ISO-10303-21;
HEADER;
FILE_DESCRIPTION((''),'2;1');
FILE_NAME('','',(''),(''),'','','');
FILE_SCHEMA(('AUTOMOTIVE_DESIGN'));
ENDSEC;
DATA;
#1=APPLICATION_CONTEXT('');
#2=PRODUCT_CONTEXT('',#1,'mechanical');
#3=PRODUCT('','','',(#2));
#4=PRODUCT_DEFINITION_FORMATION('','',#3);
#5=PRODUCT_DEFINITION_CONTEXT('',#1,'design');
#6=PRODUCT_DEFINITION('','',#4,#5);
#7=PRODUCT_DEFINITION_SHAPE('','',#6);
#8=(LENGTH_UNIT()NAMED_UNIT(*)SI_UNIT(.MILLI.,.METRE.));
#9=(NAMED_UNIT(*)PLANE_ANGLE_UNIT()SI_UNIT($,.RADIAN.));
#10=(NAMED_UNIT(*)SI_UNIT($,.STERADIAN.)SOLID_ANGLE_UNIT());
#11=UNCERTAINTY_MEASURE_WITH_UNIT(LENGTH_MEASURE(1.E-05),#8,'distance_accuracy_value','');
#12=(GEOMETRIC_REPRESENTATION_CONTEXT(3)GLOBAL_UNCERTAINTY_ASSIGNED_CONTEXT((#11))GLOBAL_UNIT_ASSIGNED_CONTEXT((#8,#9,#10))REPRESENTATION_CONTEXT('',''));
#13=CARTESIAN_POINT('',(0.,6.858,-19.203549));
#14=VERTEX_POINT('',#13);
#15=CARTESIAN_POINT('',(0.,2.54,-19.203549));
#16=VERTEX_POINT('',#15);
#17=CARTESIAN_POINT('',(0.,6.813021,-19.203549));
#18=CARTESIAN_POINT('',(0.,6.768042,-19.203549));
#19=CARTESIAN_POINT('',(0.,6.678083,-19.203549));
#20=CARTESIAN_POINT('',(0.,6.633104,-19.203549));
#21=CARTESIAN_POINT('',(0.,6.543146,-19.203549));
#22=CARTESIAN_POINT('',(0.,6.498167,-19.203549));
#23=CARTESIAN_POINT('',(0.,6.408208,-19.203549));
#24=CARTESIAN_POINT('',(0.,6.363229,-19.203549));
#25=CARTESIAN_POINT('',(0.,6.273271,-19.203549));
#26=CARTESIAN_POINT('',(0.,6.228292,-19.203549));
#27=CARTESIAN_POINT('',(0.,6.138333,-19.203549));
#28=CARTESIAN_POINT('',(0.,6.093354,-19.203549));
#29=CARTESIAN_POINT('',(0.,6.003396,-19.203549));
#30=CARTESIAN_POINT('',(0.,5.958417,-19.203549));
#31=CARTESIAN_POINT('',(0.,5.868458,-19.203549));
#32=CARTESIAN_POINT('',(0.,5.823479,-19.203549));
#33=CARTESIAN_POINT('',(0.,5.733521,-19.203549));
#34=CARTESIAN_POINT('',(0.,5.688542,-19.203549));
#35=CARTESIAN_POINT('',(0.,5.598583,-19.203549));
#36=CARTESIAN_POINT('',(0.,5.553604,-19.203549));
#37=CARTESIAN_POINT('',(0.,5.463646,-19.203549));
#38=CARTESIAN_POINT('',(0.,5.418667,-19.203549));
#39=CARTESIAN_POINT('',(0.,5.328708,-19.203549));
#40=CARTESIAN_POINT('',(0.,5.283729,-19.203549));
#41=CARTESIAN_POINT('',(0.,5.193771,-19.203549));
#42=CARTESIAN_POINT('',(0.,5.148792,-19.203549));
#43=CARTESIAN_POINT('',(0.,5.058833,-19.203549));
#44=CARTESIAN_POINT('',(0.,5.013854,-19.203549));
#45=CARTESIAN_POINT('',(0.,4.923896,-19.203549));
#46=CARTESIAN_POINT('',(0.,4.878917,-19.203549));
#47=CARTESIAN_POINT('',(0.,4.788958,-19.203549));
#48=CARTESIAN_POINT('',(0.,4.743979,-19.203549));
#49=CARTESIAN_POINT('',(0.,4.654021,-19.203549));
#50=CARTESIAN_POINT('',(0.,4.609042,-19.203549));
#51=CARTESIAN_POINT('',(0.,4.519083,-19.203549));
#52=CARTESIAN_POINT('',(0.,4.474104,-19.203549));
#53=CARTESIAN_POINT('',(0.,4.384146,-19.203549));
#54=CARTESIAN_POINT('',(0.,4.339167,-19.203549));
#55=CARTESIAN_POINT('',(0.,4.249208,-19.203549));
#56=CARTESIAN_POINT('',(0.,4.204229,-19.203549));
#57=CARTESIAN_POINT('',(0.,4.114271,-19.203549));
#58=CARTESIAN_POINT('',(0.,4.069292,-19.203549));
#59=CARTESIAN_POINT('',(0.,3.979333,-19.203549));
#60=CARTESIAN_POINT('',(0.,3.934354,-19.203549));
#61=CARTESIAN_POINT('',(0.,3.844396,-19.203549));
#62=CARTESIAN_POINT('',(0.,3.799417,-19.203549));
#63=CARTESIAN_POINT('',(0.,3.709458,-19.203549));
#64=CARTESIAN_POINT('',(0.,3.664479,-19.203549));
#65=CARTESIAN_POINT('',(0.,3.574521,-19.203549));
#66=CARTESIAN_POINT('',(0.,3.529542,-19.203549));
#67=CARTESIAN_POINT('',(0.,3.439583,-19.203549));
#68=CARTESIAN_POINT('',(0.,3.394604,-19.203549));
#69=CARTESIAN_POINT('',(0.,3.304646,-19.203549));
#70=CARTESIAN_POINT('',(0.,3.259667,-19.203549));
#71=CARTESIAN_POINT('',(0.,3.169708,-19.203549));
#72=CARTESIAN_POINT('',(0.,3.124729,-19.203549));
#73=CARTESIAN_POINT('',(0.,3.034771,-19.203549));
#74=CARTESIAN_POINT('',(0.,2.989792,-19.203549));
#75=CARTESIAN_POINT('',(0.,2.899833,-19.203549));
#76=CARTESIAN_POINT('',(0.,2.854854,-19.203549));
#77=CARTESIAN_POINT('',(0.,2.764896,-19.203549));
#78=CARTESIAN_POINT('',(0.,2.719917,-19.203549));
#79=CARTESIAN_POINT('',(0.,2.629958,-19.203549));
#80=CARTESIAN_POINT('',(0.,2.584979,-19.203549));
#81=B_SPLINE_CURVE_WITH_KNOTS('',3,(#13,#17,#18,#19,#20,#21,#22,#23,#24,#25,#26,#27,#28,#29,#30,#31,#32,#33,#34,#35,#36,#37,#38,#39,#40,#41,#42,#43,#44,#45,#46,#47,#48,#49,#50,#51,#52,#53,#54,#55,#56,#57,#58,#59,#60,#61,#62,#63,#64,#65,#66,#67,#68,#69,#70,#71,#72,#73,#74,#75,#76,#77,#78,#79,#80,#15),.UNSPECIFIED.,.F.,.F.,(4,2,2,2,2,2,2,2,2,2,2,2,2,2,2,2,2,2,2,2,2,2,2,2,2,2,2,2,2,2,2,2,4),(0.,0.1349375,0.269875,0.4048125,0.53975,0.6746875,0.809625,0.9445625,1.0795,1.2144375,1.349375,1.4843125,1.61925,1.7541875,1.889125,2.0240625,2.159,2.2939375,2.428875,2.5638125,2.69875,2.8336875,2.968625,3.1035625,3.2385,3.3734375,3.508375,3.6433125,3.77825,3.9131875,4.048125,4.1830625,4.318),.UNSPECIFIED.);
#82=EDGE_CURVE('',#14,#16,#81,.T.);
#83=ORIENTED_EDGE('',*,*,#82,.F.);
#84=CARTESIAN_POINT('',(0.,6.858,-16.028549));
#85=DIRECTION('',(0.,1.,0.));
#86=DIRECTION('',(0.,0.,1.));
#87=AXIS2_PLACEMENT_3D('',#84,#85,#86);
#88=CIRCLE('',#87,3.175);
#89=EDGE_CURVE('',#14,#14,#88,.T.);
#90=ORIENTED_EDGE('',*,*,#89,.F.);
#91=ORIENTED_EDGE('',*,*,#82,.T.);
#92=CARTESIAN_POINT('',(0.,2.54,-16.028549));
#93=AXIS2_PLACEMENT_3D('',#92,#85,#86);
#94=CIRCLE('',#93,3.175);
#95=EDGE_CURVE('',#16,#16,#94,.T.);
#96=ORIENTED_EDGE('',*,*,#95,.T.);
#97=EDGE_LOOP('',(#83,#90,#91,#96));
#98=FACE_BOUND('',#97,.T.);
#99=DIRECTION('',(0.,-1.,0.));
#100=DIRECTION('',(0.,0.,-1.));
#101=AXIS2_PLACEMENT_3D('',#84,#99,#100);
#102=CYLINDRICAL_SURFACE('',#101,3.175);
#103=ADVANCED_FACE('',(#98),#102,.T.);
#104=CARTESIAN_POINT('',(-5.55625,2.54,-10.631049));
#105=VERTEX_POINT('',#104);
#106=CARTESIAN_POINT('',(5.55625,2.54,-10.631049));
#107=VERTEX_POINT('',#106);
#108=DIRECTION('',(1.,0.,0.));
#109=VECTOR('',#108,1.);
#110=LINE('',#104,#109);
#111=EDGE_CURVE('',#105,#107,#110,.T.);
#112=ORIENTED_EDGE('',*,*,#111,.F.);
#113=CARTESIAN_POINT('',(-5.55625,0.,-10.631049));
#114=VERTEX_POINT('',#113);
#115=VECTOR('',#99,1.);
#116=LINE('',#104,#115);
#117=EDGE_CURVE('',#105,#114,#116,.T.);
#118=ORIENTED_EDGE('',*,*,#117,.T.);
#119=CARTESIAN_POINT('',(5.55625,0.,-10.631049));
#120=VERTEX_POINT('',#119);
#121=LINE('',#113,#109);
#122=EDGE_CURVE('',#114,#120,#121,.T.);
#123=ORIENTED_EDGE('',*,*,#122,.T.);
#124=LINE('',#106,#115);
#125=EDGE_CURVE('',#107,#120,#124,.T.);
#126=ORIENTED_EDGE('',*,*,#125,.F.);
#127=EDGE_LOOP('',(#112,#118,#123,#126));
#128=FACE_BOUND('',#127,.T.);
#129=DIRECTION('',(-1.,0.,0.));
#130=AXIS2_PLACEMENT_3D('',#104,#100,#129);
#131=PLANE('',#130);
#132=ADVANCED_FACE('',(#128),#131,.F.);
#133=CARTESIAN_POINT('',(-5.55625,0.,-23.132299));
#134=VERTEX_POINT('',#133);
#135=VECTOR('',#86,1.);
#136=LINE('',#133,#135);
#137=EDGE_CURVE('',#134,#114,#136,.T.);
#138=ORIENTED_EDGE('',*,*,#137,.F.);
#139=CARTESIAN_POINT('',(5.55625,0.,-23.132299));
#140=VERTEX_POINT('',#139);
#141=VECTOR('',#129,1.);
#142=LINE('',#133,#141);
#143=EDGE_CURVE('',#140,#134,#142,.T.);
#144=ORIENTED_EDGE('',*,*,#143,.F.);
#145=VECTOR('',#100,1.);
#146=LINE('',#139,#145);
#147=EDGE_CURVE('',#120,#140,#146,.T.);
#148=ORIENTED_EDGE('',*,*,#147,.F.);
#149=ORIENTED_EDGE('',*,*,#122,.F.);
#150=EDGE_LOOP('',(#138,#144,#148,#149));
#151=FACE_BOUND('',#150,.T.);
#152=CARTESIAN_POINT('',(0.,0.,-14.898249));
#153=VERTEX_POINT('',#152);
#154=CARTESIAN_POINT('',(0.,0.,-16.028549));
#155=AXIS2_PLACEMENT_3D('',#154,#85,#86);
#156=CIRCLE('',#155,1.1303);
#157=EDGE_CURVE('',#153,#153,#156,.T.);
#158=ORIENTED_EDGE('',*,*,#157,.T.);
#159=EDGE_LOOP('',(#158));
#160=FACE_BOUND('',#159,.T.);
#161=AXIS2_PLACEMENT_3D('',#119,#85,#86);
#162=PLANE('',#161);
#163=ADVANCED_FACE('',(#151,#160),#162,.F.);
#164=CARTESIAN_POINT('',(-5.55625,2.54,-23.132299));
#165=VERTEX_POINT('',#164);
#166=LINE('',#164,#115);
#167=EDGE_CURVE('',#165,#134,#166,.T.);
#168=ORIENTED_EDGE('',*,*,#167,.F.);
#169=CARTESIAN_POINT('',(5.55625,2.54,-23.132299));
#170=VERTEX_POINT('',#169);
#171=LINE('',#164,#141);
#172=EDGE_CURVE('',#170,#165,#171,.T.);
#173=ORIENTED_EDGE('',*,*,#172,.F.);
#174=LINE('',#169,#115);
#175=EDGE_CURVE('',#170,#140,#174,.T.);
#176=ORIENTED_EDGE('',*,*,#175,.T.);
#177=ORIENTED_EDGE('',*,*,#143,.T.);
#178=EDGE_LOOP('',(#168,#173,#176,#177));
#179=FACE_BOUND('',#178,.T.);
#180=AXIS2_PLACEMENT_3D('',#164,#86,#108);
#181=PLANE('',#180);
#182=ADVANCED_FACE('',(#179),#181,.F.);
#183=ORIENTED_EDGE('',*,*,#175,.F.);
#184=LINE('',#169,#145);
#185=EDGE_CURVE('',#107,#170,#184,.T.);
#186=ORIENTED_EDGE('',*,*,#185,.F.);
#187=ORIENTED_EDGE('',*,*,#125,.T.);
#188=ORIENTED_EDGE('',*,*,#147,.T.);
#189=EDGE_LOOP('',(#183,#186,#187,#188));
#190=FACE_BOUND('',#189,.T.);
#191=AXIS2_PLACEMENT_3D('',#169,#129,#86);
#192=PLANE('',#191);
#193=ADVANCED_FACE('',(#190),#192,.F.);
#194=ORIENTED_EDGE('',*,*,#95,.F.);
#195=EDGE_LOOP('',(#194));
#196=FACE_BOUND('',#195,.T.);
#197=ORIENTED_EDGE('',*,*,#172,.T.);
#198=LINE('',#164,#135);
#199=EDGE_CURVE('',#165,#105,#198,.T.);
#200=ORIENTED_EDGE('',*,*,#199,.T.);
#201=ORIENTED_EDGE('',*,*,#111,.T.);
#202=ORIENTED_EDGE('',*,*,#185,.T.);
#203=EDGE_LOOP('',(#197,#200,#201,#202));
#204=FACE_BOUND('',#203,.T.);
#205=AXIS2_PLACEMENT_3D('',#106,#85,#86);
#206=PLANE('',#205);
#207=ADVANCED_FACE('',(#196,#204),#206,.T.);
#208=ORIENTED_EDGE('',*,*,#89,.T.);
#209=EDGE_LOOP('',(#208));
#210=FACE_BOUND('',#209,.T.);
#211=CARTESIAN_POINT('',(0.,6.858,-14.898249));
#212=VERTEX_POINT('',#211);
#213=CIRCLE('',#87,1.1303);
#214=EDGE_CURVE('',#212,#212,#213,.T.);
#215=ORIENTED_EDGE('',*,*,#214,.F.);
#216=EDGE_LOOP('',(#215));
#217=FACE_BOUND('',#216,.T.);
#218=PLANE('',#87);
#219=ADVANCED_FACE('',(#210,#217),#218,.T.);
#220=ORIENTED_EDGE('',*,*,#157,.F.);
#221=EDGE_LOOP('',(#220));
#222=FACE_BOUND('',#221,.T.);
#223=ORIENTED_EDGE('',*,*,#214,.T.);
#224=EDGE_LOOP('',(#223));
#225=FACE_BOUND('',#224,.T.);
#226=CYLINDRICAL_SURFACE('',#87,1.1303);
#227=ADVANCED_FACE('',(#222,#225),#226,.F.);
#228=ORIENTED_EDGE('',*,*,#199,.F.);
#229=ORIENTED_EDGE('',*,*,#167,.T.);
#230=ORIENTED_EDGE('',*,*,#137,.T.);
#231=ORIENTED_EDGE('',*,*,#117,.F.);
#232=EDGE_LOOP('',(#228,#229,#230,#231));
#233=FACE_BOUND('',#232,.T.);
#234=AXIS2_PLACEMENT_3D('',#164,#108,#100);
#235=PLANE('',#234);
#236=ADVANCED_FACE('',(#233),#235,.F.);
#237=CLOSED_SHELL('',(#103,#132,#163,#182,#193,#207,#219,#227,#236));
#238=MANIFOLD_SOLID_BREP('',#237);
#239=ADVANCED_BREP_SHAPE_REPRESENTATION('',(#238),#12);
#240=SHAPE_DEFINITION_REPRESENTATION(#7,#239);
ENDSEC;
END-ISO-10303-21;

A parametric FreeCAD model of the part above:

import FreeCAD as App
import Part
import Sketcher

V = App.Vector
Q = App.Units.Quantity

doc = App.newDocument("Part")
body = doc.addObject("PartDesign::Body", "Body")

# Sketch on XZ plane
sketch1 = body.newObject("Sketcher::SketchObject", "Sketch")
sketch1.AttachmentSupport = (doc.getObject("XZ_Plane"), [""])
sketch1.MapMode = "FlatFace"
sketch1.addGeometry([
    Part.LineSegment(V(-6, -23, 0), V(-6, -11, 0)),
    Part.LineSegment(V(-6, -11, 0), V(6, -11, 0)),
    Part.LineSegment(V(6, -11, 0), V(6, -23, 0)),
    Part.LineSegment(V(6, -23, 0), V(-6, -23, 0)),
], False)
sketch1.addConstraint([
    Sketcher.Constraint("Coincident", 0, 2, 1, 1),
    Sketcher.Constraint("Coincident", 1, 2, 2, 1),
    Sketcher.Constraint("Coincident", 2, 2, 3, 1),
    Sketcher.Constraint("Coincident", 3, 2, 0, 1),
    Sketcher.Constraint("Vertical", 0),
    Sketcher.Constraint("Horizontal", 1),
    Sketcher.Constraint("Vertical", 2),
    Sketcher.Constraint("Horizontal", 3),
    Sketcher.Constraint("DistanceX", 1, 1, 1, 2, Q("0.4375 in")),
    Sketcher.Constraint("DistanceX", 0, 2, -1, 1, Q("0.21875 in")),
    Sketcher.Constraint("DistanceY", 0, 1, 0, 2, 12.50125),
    Sketcher.Constraint("DistanceY", 2, 2, -1, 1, 23.132299),
])
pad1 = body.newObject("PartDesign::Pad", "Pad")
pad1.Profile = sketch1
pad1.Length = Q("0.1 in")
pad1.Reversed = True

# Sketch on XZ plane
sketch2 = body.newObject("Sketcher::SketchObject", "Sketch001")
sketch2.AttachmentSupport = (doc.getObject("XZ_Plane"), [""])
sketch2.MapMode = "FlatFace"
sketch2.AttachmentOffset = App.Placement(V(0, 0, -0.1 * 25.4), App.Rotation())
sketch2.addGeometry(Part.Circle(V(0, -16, 0), V(0, 0, 1), 3.2), False)
sketch2.addConstraint([
    Sketcher.Constraint("PointOnObject", 0, 3, -2),
    Sketcher.Constraint("Diameter", 0, Q("0.25 in")),
    Sketcher.Constraint("DistanceY", 0, 3, -1, 1, 16.028549),
])
pad2 = body.newObject("PartDesign::Pad", "Pad001")
pad2.Profile = sketch2
pad2.Length = Q("0.17 in")
pad2.Reversed = True

# Sketch on XZ plane
sketch3 = body.newObject("Sketcher::SketchObject", "Sketch002")
sketch3.AttachmentSupport = (doc.getObject("XZ_Plane"), [""])
sketch3.MapMode = "FlatFace"
sketch3.AttachmentOffset = App.Placement(V(0, 0, -0.27 * 25.4), App.Rotation())
sketch3.addGeometry(Part.Circle(V(0, -16, 0), V(0, 0, 1), 1.1), False)
sketch3.addConstraint([
    Sketcher.Constraint("PointOnObject", 0, 3, -2),
    Sketcher.Constraint("Diameter", 0, Q("0.089 in")),
    Sketcher.Constraint("DistanceY", 0, 3, -1, 1, 16.028549),
])
doc.recompute()
hole = body.newObject("PartDesign::Hole", "Hole")
hole.Profile = sketch3
hole.ThreadType = "None"
hole.Diameter = Q("0.089 in")
hole.DepthType = "ThroughAll"
hole.Reversed = True

doc.recompute()
